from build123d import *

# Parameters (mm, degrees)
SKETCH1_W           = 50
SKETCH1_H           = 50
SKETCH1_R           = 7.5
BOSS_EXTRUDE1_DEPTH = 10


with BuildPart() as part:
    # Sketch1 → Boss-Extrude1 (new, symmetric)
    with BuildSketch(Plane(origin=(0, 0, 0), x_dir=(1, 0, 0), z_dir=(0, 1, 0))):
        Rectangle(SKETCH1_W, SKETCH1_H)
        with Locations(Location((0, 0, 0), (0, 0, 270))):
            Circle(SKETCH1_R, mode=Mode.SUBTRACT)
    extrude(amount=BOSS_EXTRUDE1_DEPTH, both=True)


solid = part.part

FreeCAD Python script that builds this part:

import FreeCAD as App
import Part
import Sketcher

V = App.Vector
Q = App.Units.Quantity

doc = App.newDocument("Part")
body = doc.addObject("PartDesign::Body", "Body")

# Sketch on XZ plane
sketch1 = body.newObject("Sketcher::SketchObject", "Sketch")
sketch1.AttachmentSupport = (doc.getObject("XZ_Plane"), [""])
sketch1.MapMode = "FlatFace"
sketch1.addGeometry(Part.LineSegment(V(-25, -25, 0), V(-25, 25, 0)), False)
sketch1.addGeometry(Part.LineSegment(V(-25, 25, 0), V(25, 25, 0)), False)
sketch1.addGeometry(Part.LineSegment(V(25, 25, 0), V(25, -25, 0)), False)
sketch1.addGeometry(Part.LineSegment(V(25, -25, 0), V(-25, -25, 0)), False)
sketch1.addGeometry(Part.Circle(V(0, 0, 0), V(0, 0, 1), 8), False)
sketch1.addConstraint(Sketcher.Constraint("Coincident", 0, 2, 1, 1))
sketch1.addConstraint(Sketcher.Constraint("Coincident", 1, 2, 2, 1))
sketch1.addConstraint(Sketcher.Constraint("Coincident", 2, 2, 3, 1))
sketch1.addConstraint(Sketcher.Constraint("Coincident", 3, 2, 0, 1))
sketch1.addConstraint(Sketcher.Constraint("Vertical", 0))
sketch1.addConstraint(Sketcher.Constraint("Horizontal", 1))
sketch1.addConstraint(Sketcher.Constraint("Vertical", 2))
sketch1.addConstraint(Sketcher.Constraint("Horizontal", 3))
sketch1.addConstraint(Sketcher.Constraint("Coincident", 4, 3, -1, 1))
sketch1.addConstraint(Sketcher.Constraint("Symmetric", 0, 2, 2, 2, -1, 1))
sketch1.addConstraint(Sketcher.Constraint("Equal", 3, 0))
sketch1.addConstraint(Sketcher.Constraint("Diameter", 4, Q("15 mm")))
sketch1.addConstraint(Sketcher.Constraint("DistanceX", 1, 1, 1, 2, Q("50 mm")))
pad1 = body.newObject("PartDesign::Pad", "Pad")
pad1.Profile = sketch1
pad1.Length = 20
pad1.Midplane = True

doc.recompute()
